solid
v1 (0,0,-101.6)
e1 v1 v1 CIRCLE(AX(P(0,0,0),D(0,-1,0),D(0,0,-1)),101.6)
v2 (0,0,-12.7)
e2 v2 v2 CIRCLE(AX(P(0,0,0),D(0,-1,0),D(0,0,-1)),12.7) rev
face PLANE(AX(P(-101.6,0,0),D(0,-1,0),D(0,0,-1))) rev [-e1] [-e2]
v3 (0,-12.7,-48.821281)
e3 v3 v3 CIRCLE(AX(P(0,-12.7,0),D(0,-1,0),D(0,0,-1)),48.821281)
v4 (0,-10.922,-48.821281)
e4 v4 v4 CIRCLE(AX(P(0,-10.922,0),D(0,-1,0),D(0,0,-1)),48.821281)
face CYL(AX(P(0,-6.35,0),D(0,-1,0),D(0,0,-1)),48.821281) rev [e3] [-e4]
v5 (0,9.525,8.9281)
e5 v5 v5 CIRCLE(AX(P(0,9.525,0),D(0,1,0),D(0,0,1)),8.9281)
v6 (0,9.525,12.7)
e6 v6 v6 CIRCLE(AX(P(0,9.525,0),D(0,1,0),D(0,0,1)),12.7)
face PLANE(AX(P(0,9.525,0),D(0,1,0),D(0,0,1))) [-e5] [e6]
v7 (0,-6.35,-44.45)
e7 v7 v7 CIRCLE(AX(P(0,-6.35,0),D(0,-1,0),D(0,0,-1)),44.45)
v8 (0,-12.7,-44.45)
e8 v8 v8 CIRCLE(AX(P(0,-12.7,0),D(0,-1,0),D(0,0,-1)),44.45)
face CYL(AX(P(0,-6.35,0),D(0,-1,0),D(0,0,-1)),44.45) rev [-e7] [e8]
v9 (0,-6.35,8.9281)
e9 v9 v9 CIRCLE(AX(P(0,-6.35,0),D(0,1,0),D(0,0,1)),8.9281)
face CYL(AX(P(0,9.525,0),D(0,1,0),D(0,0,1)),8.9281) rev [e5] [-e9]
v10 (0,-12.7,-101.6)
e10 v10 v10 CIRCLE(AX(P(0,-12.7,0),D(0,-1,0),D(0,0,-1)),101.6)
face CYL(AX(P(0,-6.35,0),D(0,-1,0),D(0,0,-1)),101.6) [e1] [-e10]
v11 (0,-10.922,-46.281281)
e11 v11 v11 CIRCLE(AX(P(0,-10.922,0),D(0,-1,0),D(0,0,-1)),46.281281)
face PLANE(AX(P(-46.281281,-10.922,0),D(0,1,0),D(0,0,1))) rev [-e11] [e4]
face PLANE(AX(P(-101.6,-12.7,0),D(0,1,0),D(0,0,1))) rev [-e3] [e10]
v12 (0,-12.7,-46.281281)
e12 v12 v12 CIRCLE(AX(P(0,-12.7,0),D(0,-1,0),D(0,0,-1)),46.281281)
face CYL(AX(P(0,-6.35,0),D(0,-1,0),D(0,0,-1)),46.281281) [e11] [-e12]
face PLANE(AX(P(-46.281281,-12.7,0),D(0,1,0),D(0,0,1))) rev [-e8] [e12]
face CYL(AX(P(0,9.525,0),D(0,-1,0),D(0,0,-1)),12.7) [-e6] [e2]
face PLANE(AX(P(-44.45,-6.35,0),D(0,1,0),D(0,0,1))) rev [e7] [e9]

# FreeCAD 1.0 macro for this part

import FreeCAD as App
import Part
import Sketcher

V = App.Vector
Q = App.Units.Quantity

doc = App.newDocument("Part")
params = doc.addObject("Spreadsheet::Sheet", "Params")
for row, (alias, value) in enumerate([
    ("sketch1_width", "4 in"),
    ("sketch1_width2", "0.1 in"),
    ("sketch1_height", "0.5 in"),
    ("sketch1_width3", "1.75 in"),
    ("sketch1_height2", "0.07 in"),
    ("revolution_angle", "360 deg"),
    ("sketch2_diameter", "1 in"),
    ("pad1_length", "0.375 in"),
    ("sketch3_diameter", "0.703 in"),
    ("hole_diameter", "0.703 in"),
    ("hole_depth", "1.25 in"),
], start=1):
    params.set(f"A{row}", alias)
    params.set(f"B{row}", "=" + value)
    params.setAlias(f"B{row}", alias)

body = doc.addObject("PartDesign::Body", "Body")

sketch1 = doc.addObject("Sketcher::SketchObject", "Sketch")
body.addObject(sketch1)
sketch1.AttachmentSupport = (doc.XY_Plane, [""])
sketch1.MapMode = "FlatFace"
sketch1.addGeometry(Part.LineSegment(V(-101.6, 0, 0), V(-101.6, -12.7, 0)), False)
sketch1.addGeometry(Part.LineSegment(V(-101.6, -12.7, 0), V(-48.8, -12.7, 0)), False)
sketch1.addGeometry(Part.LineSegment(V(-48.8, -12.7, 0), V(-48.8, -10.9, 0)), False)
sketch1.addGeometry(Part.LineSegment(V(-48.8, -10.9, 0), V(-46.3, -10.9, 0)), False)
sketch1.addGeometry(Part.LineSegment(V(-46.3, -10.9, 0), V(-46.3, -12.7, 0)), False)
sketch1.addGeometry(Part.LineSegment(V(-46.3, -12.7, 0), V(-44.5, -12.7, 0)), False)
sketch1.addGeometry(Part.LineSegment(V(-44.5, -12.7, 0), V(-44.5, -6.3, 0)), False)
sketch1.addGeometry(Part.LineSegment(V(-44.5, -6.3, 0), V(0, -6.3, 0)), False)
sketch1.addGeometry(Part.LineSegment(V(0, -6.3, 0), V(0, 0, 0)), False)
sketch1.addGeometry(Part.LineSegment(V(0, 0, 0), V(-101.6, 0, 0)), False)
sketch1.addConstraint(Sketcher.Constraint("Coincident", 0, 2, 1, 1))
sketch1.addConstraint(Sketcher.Constraint("Coincident", 1, 2, 2, 1))
sketch1.addConstraint(Sketcher.Constraint("Coincident", 2, 2, 3, 1))
sketch1.addConstraint(Sketcher.Constraint("Coincident", 3, 2, 4, 1))
sketch1.addConstraint(Sketcher.Constraint("Coincident", 4, 2, 5, 1))
sketch1.addConstraint(Sketcher.Constraint("Coincident", 5, 2, 6, 1))
sketch1.addConstraint(Sketcher.Constraint("Coincident", 6, 2, 7, 1))
sketch1.addConstraint(Sketcher.Constraint("Coincident", 7, 2, 8, 1))
sketch1.addConstraint(Sketcher.Constraint("Coincident", 8, 2, 9, 1))
sketch1.addConstraint(Sketcher.Constraint("Coincident", 9, 2, 0, 1))
sketch1.addConstraint(Sketcher.Constraint("Vertical", 0))
sketch1.addConstraint(Sketcher.Constraint("Horizontal", 1))
sketch1.addConstraint(Sketcher.Constraint("Vertical", 2))
sketch1.addConstraint(Sketcher.Constraint("Horizontal", 3))
sketch1.addConstraint(Sketcher.Constraint("Vertical", 4))
sketch1.addConstraint(Sketcher.Constraint("Horizontal", 5))
sketch1.addConstraint(Sketcher.Constraint("Vertical", 6))
sketch1.addConstraint(Sketcher.Constraint("Horizontal", 7))
sketch1.addConstraint(Sketcher.Constraint("Vertical", 8))
sketch1.addConstraint(Sketcher.Constraint("Horizontal", 9))
sketch1.addConstraint(Sketcher.Constraint("Coincident", 8, 2, -1, 1))
sketch1.addConstraint(Sketcher.Constraint("Horizontal", 1, 2, 4, 2))
sketch1.addConstraint(Sketcher.Constraint("Equal", 6, 8))
sketch1.addConstraint(Sketcher.Constraint("DistanceX", 9, 2, 9, 1, Q("4 in")))
sketch1.addConstraint(Sketcher.Constraint("DistanceX", 3, 1, 3, 2, Q("0.1 in")))
sketch1.addConstraint(Sketcher.Constraint("DistanceY", 0, 2, 0, 1, Q("0.5 in")))
sketch1.addConstraint(Sketcher.Constraint("DistanceX", 7, 1, 7, 2, Q("1.75 in")))
sketch1.addConstraint(Sketcher.Constraint("DistanceY", 2, 1, 2, 2, Q("0.07 in")))
sketch1.addConstraint(Sketcher.Constraint("DistanceX", 1, 1, 1, 2, 52.778719))
sketch1.setExpression("Constraints[23]", "Params.sketch1_width")
sketch1.setExpression("Constraints[24]", "Params.sketch1_width2")
sketch1.setExpression("Constraints[25]", "Params.sketch1_height")
sketch1.setExpression("Constraints[26]", "Params.sketch1_width3")
sketch1.setExpression("Constraints[27]", "Params.sketch1_height2")
revolution = doc.addObject("PartDesign::Revolution", "Revolution")
body.addObject(revolution)
revolution.Profile = sketch1
revolution.ReferenceAxis = (sketch1, ["V_Axis"])
revolution.setExpression("Angle", "Params.revolution_angle")

sketch2 = doc.addObject("Sketcher::SketchObject", "Sketch001")
body.addObject(sketch2)
sketch2.AttachmentSupport = (doc.XZ_Plane, [""])
sketch2.MapMode = "FlatFace"
sketch2.addGeometry(Part.Circle(V(0, 0, 0), V(0, 0, 1), 13), False)
sketch2.addConstraint(Sketcher.Constraint("Coincident", 0, 3, -1, 1))
sketch2.addConstraint(Sketcher.Constraint("Diameter", 0, Q("1 in")))
sketch2.setExpression("Constraints[1]", "Params.sketch2_diameter")
pad1 = doc.addObject("PartDesign::Pad", "Pad")
body.addObject(pad1)
pad1.Profile = sketch2
pad1.setExpression("Length", "Params.pad1_length")
pad1.Reversed = True

sketch3 = doc.addObject("Sketcher::SketchObject", "Sketch002")
body.addObject(sketch3)
sketch3.AttachmentSupport = (doc.XZ_Plane, [""])
sketch3.MapMode = "FlatFace"
sketch3.AttachmentOffset = App.Placement(V(0, 0, -0.375 * 25.4), App.Rotation())
sketch3.addGeometry(Part.Circle(V(0, 0, 0), V(0, 0, 1), 9), False)
sketch3.addConstraint(Sketcher.Constraint("Coincident", 0, 3, -1, 1))
sketch3.addConstraint(Sketcher.Constraint("Diameter", 0, Q("0.703 in")))
sketch3.setExpression("Constraints[1]", "Params.sketch3_diameter")
doc.recompute()
hole = doc.addObject("PartDesign::Hole", "Hole")
body.addObject(hole)
hole.Profile = sketch3
hole.ThreadType = "None"
hole.setExpression("Diameter", "Params.hole_diameter")
hole.DepthType = "Dimension"
hole.setExpression("Depth", "Params.hole_depth")
hole.DrillPoint = "Angled"
hole.DrillPointAngle = 118
hole.Reversed = True

doc.recompute()
